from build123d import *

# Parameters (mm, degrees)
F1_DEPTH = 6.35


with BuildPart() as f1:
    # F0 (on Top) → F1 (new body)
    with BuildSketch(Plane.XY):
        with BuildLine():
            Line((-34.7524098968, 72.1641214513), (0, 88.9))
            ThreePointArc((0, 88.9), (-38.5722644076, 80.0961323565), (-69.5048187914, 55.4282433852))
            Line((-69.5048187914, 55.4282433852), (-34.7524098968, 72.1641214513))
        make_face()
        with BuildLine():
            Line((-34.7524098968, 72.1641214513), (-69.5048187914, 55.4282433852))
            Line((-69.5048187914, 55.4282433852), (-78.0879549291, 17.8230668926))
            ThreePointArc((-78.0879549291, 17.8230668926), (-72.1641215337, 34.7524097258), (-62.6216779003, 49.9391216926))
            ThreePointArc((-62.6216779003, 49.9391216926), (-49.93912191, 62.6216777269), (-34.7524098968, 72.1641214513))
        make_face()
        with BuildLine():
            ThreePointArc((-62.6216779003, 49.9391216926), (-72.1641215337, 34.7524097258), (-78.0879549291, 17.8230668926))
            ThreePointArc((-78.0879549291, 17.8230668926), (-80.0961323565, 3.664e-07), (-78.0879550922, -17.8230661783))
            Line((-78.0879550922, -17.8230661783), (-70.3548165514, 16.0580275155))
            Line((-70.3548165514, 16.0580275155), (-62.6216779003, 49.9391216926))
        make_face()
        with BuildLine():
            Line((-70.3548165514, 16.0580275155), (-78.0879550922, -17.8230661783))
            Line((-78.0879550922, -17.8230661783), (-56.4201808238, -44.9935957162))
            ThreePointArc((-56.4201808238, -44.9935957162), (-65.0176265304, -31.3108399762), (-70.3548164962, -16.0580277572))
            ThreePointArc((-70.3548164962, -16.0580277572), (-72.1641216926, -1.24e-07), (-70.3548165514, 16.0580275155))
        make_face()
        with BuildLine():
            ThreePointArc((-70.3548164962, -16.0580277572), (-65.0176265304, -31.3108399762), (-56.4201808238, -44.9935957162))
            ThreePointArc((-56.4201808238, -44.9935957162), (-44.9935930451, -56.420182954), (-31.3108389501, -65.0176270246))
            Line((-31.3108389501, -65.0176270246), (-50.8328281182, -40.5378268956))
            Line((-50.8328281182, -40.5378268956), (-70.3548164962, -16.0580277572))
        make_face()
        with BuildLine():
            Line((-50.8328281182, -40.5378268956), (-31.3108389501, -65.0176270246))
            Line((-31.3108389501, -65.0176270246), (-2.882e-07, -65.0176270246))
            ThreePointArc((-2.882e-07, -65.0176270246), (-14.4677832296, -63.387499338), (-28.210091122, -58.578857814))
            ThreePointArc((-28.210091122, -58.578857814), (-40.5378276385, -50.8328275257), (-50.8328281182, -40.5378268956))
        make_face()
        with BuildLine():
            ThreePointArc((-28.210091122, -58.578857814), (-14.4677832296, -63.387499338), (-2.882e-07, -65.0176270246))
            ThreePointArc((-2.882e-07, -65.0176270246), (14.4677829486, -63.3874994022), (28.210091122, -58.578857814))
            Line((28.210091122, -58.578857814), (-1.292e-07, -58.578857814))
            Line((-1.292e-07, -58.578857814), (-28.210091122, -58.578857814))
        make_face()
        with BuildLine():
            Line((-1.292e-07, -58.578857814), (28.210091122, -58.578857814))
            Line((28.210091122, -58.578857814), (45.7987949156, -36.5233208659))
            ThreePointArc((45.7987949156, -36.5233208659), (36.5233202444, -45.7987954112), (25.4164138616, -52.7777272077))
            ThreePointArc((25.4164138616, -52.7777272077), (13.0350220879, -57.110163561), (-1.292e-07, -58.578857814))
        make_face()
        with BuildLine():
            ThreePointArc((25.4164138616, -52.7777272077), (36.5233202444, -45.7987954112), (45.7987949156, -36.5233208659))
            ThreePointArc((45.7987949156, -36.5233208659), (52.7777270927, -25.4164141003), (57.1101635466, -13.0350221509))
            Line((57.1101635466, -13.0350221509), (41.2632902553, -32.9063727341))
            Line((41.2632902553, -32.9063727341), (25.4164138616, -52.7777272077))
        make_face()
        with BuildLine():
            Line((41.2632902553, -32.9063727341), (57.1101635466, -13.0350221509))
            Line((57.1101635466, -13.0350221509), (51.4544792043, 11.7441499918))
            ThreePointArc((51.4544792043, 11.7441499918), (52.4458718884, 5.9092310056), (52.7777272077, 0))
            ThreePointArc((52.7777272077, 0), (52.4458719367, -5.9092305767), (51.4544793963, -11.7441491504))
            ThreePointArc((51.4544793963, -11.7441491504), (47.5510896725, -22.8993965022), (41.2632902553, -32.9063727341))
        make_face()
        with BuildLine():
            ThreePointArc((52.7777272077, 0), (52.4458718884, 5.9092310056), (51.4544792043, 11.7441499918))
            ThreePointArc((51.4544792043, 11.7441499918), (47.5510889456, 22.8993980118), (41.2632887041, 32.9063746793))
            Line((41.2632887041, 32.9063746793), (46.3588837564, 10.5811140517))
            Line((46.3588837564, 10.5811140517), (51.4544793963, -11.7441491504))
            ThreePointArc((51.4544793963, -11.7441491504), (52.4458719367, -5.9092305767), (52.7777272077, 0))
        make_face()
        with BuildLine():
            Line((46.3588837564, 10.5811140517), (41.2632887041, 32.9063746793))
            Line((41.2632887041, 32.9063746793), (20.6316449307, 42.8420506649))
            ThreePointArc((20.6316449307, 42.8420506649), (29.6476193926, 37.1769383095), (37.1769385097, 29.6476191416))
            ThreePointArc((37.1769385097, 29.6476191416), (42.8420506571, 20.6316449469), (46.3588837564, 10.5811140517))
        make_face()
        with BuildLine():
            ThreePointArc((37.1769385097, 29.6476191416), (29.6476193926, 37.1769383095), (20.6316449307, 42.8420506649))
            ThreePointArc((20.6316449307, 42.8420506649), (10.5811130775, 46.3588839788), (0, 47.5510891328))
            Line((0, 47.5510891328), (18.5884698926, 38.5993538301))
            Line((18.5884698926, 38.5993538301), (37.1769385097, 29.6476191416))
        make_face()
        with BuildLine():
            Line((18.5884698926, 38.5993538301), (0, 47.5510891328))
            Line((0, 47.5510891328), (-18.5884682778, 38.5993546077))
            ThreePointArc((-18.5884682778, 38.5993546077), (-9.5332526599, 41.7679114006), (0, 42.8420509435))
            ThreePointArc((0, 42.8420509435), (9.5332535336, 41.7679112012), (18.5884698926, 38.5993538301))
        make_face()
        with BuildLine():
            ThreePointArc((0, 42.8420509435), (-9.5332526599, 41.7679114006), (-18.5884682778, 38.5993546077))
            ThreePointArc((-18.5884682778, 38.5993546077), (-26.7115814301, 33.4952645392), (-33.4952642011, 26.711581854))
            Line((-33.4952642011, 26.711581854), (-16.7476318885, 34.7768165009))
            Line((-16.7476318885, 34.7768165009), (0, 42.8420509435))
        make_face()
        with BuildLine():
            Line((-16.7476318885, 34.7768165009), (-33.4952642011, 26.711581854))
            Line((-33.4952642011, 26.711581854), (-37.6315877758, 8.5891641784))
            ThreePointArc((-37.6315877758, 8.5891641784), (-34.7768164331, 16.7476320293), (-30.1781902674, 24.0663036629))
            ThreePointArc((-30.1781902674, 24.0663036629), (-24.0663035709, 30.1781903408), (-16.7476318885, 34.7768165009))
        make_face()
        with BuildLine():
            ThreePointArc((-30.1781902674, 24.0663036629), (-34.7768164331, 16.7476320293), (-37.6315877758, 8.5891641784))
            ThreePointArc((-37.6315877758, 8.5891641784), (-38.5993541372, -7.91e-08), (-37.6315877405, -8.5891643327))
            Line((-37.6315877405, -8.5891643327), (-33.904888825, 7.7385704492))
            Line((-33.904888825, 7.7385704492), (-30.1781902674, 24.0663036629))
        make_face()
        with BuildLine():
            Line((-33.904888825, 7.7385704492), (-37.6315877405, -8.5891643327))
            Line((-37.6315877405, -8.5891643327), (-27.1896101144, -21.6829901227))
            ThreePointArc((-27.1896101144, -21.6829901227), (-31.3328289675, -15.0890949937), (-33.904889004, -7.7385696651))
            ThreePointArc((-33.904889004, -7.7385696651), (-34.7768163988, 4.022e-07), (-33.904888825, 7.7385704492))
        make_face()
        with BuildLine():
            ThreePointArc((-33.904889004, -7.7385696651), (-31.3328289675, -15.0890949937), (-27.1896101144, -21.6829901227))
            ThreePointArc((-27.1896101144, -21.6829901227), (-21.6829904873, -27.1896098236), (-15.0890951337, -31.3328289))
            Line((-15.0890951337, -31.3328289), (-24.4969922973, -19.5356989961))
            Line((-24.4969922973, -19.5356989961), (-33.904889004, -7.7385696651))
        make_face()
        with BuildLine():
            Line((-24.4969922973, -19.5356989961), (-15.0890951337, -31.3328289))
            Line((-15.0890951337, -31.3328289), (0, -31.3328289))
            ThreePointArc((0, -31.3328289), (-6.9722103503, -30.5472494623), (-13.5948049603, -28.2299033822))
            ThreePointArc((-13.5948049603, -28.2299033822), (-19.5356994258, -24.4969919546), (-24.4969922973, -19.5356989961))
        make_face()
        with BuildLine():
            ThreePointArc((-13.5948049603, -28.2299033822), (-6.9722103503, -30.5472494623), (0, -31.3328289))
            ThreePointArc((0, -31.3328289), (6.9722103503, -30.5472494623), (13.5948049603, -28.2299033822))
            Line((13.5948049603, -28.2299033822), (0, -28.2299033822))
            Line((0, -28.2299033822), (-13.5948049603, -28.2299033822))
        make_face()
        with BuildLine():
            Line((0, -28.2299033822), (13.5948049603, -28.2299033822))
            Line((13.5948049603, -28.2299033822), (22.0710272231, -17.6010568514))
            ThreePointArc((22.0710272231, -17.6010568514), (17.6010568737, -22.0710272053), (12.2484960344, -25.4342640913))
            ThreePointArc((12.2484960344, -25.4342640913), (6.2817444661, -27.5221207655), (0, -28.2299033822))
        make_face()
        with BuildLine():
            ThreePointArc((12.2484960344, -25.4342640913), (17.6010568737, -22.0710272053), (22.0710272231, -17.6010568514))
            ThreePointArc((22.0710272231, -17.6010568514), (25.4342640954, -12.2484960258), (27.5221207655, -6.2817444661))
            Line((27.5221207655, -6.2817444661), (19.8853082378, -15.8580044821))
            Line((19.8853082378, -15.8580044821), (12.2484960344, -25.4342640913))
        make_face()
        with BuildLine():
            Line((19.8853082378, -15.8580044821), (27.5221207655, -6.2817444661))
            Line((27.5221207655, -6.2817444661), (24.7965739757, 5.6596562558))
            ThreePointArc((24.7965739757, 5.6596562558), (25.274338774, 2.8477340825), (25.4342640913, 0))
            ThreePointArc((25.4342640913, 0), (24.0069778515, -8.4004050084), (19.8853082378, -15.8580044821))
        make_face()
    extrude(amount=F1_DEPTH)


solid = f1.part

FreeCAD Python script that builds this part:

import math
import FreeCAD as App
import Part
import Sketcher
from FreeCAD import Vector
Q = App.Units.Quantity

doc = App.newDocument("Part")
body = doc.addObject("PartDesign::Body", "Body")

sketch1 = body.newObject("Sketcher::SketchObject", "Sketch")
sketch1.AttachmentSupport = (doc.getObject("XY_Plane"), [""])
sketch1.MapMode = "FlatFace"
sketch1.addGeometry(Part.ArcOfCircle(Part.Circle(Vector(0, 0, 0), Vector(0, 0, 1), 89), math.radians(90), math.radians(141)), False)
sketch1.addGeometry(Part.LineSegment(Vector(-70, 55, 0), Vector(-78, 18, 0)), False)
sketch1.addGeometry(Part.ArcOfCircle(Part.Circle(Vector(0, 0, 0), Vector(0, 0, 1), 80), math.radians(167), math.radians(193)), False)
sketch1.addGeometry(Part.LineSegment(Vector(-78, -18, 0), Vector(-56, -45, 0)), False)
sketch1.addGeometry(Part.ArcOfCircle(Part.Circle(Vector(0, 0, 0), Vector(0, 0, 1), 72), math.radians(-141), math.radians(-116)), False)
sketch1.addGeometry(Part.LineSegment(Vector(-31, -65, 0), Vector(0, -65, 0)), False)
sketch1.addGeometry(Part.ArcOfCircle(Part.Circle(Vector(0, 0, 0), Vector(0, 0, 1), 65), math.radians(-90), math.radians(-64)), False)
sketch1.addGeometry(Part.LineSegment(Vector(28, -59, 0), Vector(46, -37, 0)), False)
sketch1.addGeometry(Part.ArcOfCircle(Part.Circle(Vector(0, 0, 0), Vector(0, 0, 1), 59), math.radians(-39), math.radians(-13)), False)
sketch1.addGeometry(Part.LineSegment(Vector(57, -13, 0), Vector(51, 12, 0)), False)
sketch1.addGeometry(Part.ArcOfCircle(Part.Circle(Vector(0, 0, 0), Vector(0, 0, 1), 53), math.radians(13), math.radians(39)), False)
sketch1.addGeometry(Part.LineSegment(Vector(41, 33, 0), Vector(21, 43, 0)), False)
sketch1.addGeometry(Part.ArcOfCircle(Part.Circle(Vector(0, 0, 0), Vector(0, 0, 1), 48), math.radians(64), math.radians(90)), False)
sketch1.addGeometry(Part.LineSegment(Vector(0, 48, 0), Vector(-19, 39, 0)), False)
sketch1.addGeometry(Part.ArcOfCircle(Part.Circle(Vector(0, 0, 0), Vector(0, 0, 1), 43), math.radians(116), math.radians(141)), False)
sketch1.addGeometry(Part.LineSegment(Vector(-33, 27, 0), Vector(-38, 9, 0)), False)
sketch1.addGeometry(Part.ArcOfCircle(Part.Circle(Vector(0, 0, 0), Vector(0, 0, 1), 39), math.radians(167), math.radians(193)), False)
sketch1.addGeometry(Part.LineSegment(Vector(-38, -9, 0), Vector(-27, -22, 0)), False)
sketch1.addGeometry(Part.ArcOfCircle(Part.Circle(Vector(0, 0, 0), Vector(0, 0, 1), 35), math.radians(-141), math.radians(-116)), False)
sketch1.addGeometry(Part.LineSegment(Vector(-15, -31, 0), Vector(0, -31, 0)), False)
sketch1.addGeometry(Part.ArcOfCircle(Part.Circle(Vector(0, 0, 0), Vector(0, 0, 1), 31), math.radians(-90), math.radians(-64)), False)
sketch1.addGeometry(Part.LineSegment(Vector(14, -28, 0), Vector(22, -18, 0)), False)
sketch1.addGeometry(Part.ArcOfCircle(Part.Circle(Vector(0, 0, 0), Vector(0, 0, 1), 28), math.radians(-39), math.radians(-13)), False)
sketch1.addGeometry(Part.LineSegment(Vector(28, -6, 0), Vector(25, 6, 0)), False)
sketch1.addGeometry(Part.ArcOfCircle(Part.Circle(Vector(0, 0, 0), Vector(0, 0, 1), 25), math.radians(0), math.radians(12.86)), False)
sketch1.addGeometry(Part.ArcOfCircle(Part.Circle(Vector(0, 0, 0), Vector(0, 0, 1), 25), math.radians(-39), math.radians(0)), False)
sketch1.addGeometry(Part.LineSegment(Vector(20, -16, 0), Vector(12, -25, 0)), False)
sketch1.addGeometry(Part.ArcOfCircle(Part.Circle(Vector(0, 0, 0), Vector(0, 0, 1), 28), math.radians(-90), math.radians(-64)), False)
sketch1.addGeometry(Part.LineSegment(Vector(0, -28, 0), Vector(-14, -28, 0)), False)
sketch1.addGeometry(Part.ArcOfCircle(Part.Circle(Vector(0, 0, 0), Vector(0, 0, 1), 31), math.radians(-141), math.radians(-116)), False)
sketch1.addGeometry(Part.LineSegment(Vector(-24, -20, 0), Vector(-34, -8, 0)), False)
sketch1.addGeometry(Part.ArcOfCircle(Part.Circle(Vector(0, 0, 0), Vector(0, 0, 1), 35), math.radians(167), math.radians(193)), False)
sketch1.addGeometry(Part.LineSegment(Vector(-34, 8, 0), Vector(-30, 24, 0)), False)
sketch1.addGeometry(Part.ArcOfCircle(Part.Circle(Vector(0, 0, 0), Vector(0, 0, 1), 39), math.radians(116), math.radians(141)), False)
sketch1.addGeometry(Part.LineSegment(Vector(-17, 35, 0), Vector(0, 43, 0)), False)
sketch1.addGeometry(Part.ArcOfCircle(Part.Circle(Vector(0, 0, 0), Vector(0, 0, 1), 43), math.radians(64), math.radians(90)), False)
sketch1.addGeometry(Part.LineSegment(Vector(19, 39, 0), Vector(37, 30, 0)), False)
sketch1.addGeometry(Part.ArcOfCircle(Part.Circle(Vector(0, 0, 0), Vector(0, 0, 1), 48), math.radians(13), math.radians(39)), False)
sketch1.addGeometry(Part.LineSegment(Vector(46, 11, 0), Vector(51, -12, 0)), False)
sketch1.addGeometry(Part.ArcOfCircle(Part.Circle(Vector(0, 0, 0), Vector(0, 0, 1), 53), math.radians(-39), math.radians(-13)), False)
sketch1.addGeometry(Part.LineSegment(Vector(41, -33, 0), Vector(25, -53, 0)), False)
sketch1.addGeometry(Part.ArcOfCircle(Part.Circle(Vector(0, 0, 0), Vector(0, 0, 1), 59), math.radians(-90), math.radians(-64)), False)
sketch1.addGeometry(Part.LineSegment(Vector(0, -59, 0), Vector(-28, -59, 0)), False)
sketch1.addGeometry(Part.ArcOfCircle(Part.Circle(Vector(0, 0, 0), Vector(0, 0, 1), 65), math.radians(-141), math.radians(-116)), False)
sketch1.addGeometry(Part.LineSegment(Vector(-51, -41, 0), Vector(-70, -16, 0)), False)
sketch1.addGeometry(Part.ArcOfCircle(Part.Circle(Vector(0, 0, 0), Vector(0, 0, 1), 72), math.radians(167), math.radians(193)), False)
sketch1.addGeometry(Part.LineSegment(Vector(-70, 16, 0), Vector(-63, 50, 0)), False)
sketch1.addGeometry(Part.ArcOfCircle(Part.Circle(Vector(0, 0, 0), Vector(0, 0, 1), 80), math.radians(116), math.radians(141)), False)
sketch1.addGeometry(Part.LineSegment(Vector(-35, 72, 0), Vector(0, 89, 0)), False)
sketch1.addConstraint(Sketcher.Constraint("Coincident", 0, 2, 1, 1))
sketch1.addConstraint(Sketcher.Constraint("Tangent", 1, 2, 2, 1))
sketch1.addConstraint(Sketcher.Constraint("Coincident", 2, 2, 3, 1))
sketch1.addConstraint(Sketcher.Constraint("Tangent", 3, 2, 4, 1))
sketch1.addConstraint(Sketcher.Constraint("Coincident", 4, 2, 5, 1))
sketch1.addConstraint(Sketcher.Constraint("Tangent", 5, 2, 6, 1))
sketch1.addConstraint(Sketcher.Constraint("Coincident", 6, 2, 7, 1))
sketch1.addConstraint(Sketcher.Constraint("Tangent", 7, 2, 8, 1))
sketch1.addConstraint(Sketcher.Constraint("Coincident", 8, 2, 9, 1))
sketch1.addConstraint(Sketcher.Constraint("Tangent", 9, 2, 10, 1))
sketch1.addConstraint(Sketcher.Constraint("Coincident", 10, 2, 11, 1))
sketch1.addConstraint(Sketcher.Constraint("Tangent", 11, 2, 12, 1))
sketch1.addConstraint(Sketcher.Constraint("Coincident", 12, 2, 13, 1))
sketch1.addConstraint(Sketcher.Constraint("Tangent", 13, 2, 14, 1))
sketch1.addConstraint(Sketcher.Constraint("Coincident", 14, 2, 15, 1))
sketch1.addConstraint(Sketcher.Constraint("Tangent", 15, 2, 16, 1))
sketch1.addConstraint(Sketcher.Constraint("Coincident", 16, 2, 17, 1))
sketch1.addConstraint(Sketcher.Constraint("Tangent", 17, 2, 18, 1))
sketch1.addConstraint(Sketcher.Constraint("Coincident", 18, 2, 19, 1))
sketch1.addConstraint(Sketcher.Constraint("Tangent", 19, 2, 20, 1))
sketch1.addConstraint(Sketcher.Constraint("Coincident", 20, 2, 21, 1))
sketch1.addConstraint(Sketcher.Constraint("Tangent", 21, 2, 22, 1))
sketch1.addConstraint(Sketcher.Constraint("Coincident", 22, 2, 23, 1))
sketch1.addConstraint(Sketcher.Constraint("Tangent", 23, 2, 24, 2))
sketch1.addConstraint(Sketcher.Constraint("Tangent", 24, 1, 25, 2))
sketch1.addConstraint(Sketcher.Constraint("Tangent", 25, 1, 26, 1))
sketch1.addConstraint(Sketcher.Constraint("Coincident", 26, 2, 27, 2))
sketch1.addConstraint(Sketcher.Constraint("Tangent", 27, 1, 28, 1))
sketch1.addConstraint(Sketcher.Constraint("Coincident", 28, 2, 29, 2))
sketch1.addConstraint(Sketcher.Constraint("Tangent", 29, 1, 30, 1))
sketch1.addConstraint(Sketcher.Constraint("Coincident", 30, 2, 31, 2))
sketch1.addConstraint(Sketcher.Constraint("Tangent", 31, 1, 32, 1))
sketch1.addConstraint(Sketcher.Constraint("Coincident", 32, 2, 33, 2))
sketch1.addConstraint(Sketcher.Constraint("Tangent", 33, 1, 34, 1))
sketch1.addConstraint(Sketcher.Constraint("Coincident", 34, 2, 35, 2))
sketch1.addConstraint(Sketcher.Constraint("Tangent", 35, 1, 36, 1))
sketch1.addConstraint(Sketcher.Constraint("Coincident", 36, 2, 37, 2))
sketch1.addConstraint(Sketcher.Constraint("Tangent", 37, 1, 38, 1))
sketch1.addConstraint(Sketcher.Constraint("Coincident", 38, 2, 39, 2))
sketch1.addConstraint(Sketcher.Constraint("Tangent", 39, 1, 40, 1))
sketch1.addConstraint(Sketcher.Constraint("Coincident", 40, 2, 41, 2))
sketch1.addConstraint(Sketcher.Constraint("Tangent", 41, 1, 42, 1))
sketch1.addConstraint(Sketcher.Constraint("Coincident", 42, 2, 43, 2))
sketch1.addConstraint(Sketcher.Constraint("Tangent", 43, 1, 44, 1))
sketch1.addConstraint(Sketcher.Constraint("Coincident", 44, 2, 45, 2))
sketch1.addConstraint(Sketcher.Constraint("Tangent", 45, 1, 46, 1))
sketch1.addConstraint(Sketcher.Constraint("Coincident", 46, 2, 47, 2))
sketch1.addConstraint(Sketcher.Constraint("Tangent", 47, 1, 48, 1))
sketch1.addConstraint(Sketcher.Constraint("Coincident", 48, 2, 0, 1))
sketch1.addConstraint(Sketcher.Constraint("Horizontal", 5))
sketch1.addConstraint(Sketcher.Constraint("Horizontal", 19))
sketch1.addConstraint(Sketcher.Constraint("Horizontal", 28))
sketch1.addConstraint(Sketcher.Constraint("Horizontal", 42))
sketch1.addConstraint(Sketcher.Constraint("Coincident", 0, 3, -1, 1))
sketch1.addConstraint(Sketcher.Constraint("Coincident", 2, 3, -1, 1))
sketch1.addConstraint(Sketcher.Constraint("Coincident", 4, 3, -1, 1))
sketch1.addConstraint(Sketcher.Constraint("Coincident", 6, 3, -1, 1))
sketch1.addConstraint(Sketcher.Constraint("Coincident", 8, 3, -1, 1))
sketch1.addConstraint(Sketcher.Constraint("Coincident", 10, 3, -1, 1))
sketch1.addConstraint(Sketcher.Constraint("Coincident", 12, 3, -1, 1))
sketch1.addConstraint(Sketcher.Constraint("Coincident", 14, 3, -1, 1))
sketch1.addConstraint(Sketcher.Constraint("Coincident", 16, 3, -1, 1))
sketch1.addConstraint(Sketcher.Constraint("Coincident", 18, 3, -1, 1))
sketch1.addConstraint(Sketcher.Constraint("Coincident", 20, 3, -1, 1))
sketch1.addConstraint(Sketcher.Constraint("Coincident", 22, 3, -1, 1))
sketch1.addConstraint(Sketcher.Constraint("Coincident", 24, 3, -1, 1))
sketch1.addConstraint(Sketcher.Constraint("Coincident", 27, 3, -1, 1))
sketch1.addConstraint(Sketcher.Constraint("Coincident", 29, 3, -1, 1))
sketch1.addConstraint(Sketcher.Constraint("Coincident", 31, 3, -1, 1))
sketch1.addConstraint(Sketcher.Constraint("Coincident", 33, 3, -1, 1))
sketch1.addConstraint(Sketcher.Constraint("Coincident", 35, 3, -1, 1))
sketch1.addConstraint(Sketcher.Constraint("Coincident", 37, 3, -1, 1))
sketch1.addConstraint(Sketcher.Constraint("Coincident", 39, 3, -1, 1))
sketch1.addConstraint(Sketcher.Constraint("Coincident", 41, 3, -1, 1))
sketch1.addConstraint(Sketcher.Constraint("Coincident", 43, 3, -1, 1))
sketch1.addConstraint(Sketcher.Constraint("Coincident", 45, 3, -1, 1))
sketch1.addConstraint(Sketcher.Constraint("Coincident", 47, 3, -1, 1))
sketch1.addConstraint(Sketcher.Constraint("Equal", 24, 25))
sketch1.addConstraint(Sketcher.Constraint("Equal", 22, 27))
sketch1.addConstraint(Sketcher.Constraint("Equal", 20, 29))
sketch1.addConstraint(Sketcher.Constraint("Equal", 18, 31))
sketch1.addConstraint(Sketcher.Constraint("Equal", 16, 33))
sketch1.addConstraint(Sketcher.Constraint("Equal", 14, 35))
sketch1.addConstraint(Sketcher.Constraint("Equal", 12, 37))
sketch1.addConstraint(Sketcher.Constraint("Equal", 10, 39))
sketch1.addConstraint(Sketcher.Constraint("Equal", 8, 41))
sketch1.addConstraint(Sketcher.Constraint("Equal", 6, 43))
sketch1.addConstraint(Sketcher.Constraint("Equal", 4, 45))
sketch1.addConstraint(Sketcher.Constraint("Equal", 2, 47))
sketch1.addConstraint(Sketcher.Constraint("PointOnObject", 12, 2, -2))
sketch1.addConstraint(Sketcher.Constraint("PointOnObject", 24, 1, -1))
sketch1.addConstraint(Sketcher.Constraint("PointOnObject", 34, 2, -2))
sketch1.addConstraint(Sketcher.Constraint("PointOnObject", 48, 2, -2))
sketch1.addConstraint(Sketcher.Constraint("Parallel", 1, 15))
sketch1.addConstraint(Sketcher.Constraint("Parallel", 3, 17))
sketch1.addConstraint(Sketcher.Constraint("Parallel", 7, 21))
sketch1.addConstraint(Sketcher.Constraint("Parallel", 9, 23))
sketch1.addConstraint(Sketcher.Constraint("Parallel", 21, 26))
sketch1.addConstraint(Sketcher.Constraint("Parallel", 17, 30))
sketch1.addConstraint(Sketcher.Constraint("Parallel", 15, 32))
sketch1.addConstraint(Sketcher.Constraint("Parallel", 13, 34))
sketch1.addConstraint(Sketcher.Constraint("Parallel", 11, 36))
sketch1.addConstraint(Sketcher.Constraint("Parallel", 23, 38))
sketch1.addConstraint(Sketcher.Constraint("Parallel", 26, 40))
sketch1.addConstraint(Sketcher.Constraint("Parallel", 30, 44))
sketch1.addConstraint(Sketcher.Constraint("Parallel", 32, 46))
sketch1.addConstraint(Sketcher.Constraint("Parallel", 34, 48))
sketch1.addConstraint(Sketcher.Constraint("Horizontal", 20, 2, 27, 1))
sketch1.addConstraint(Sketcher.Constraint("Horizontal", 11, 2, 34, 2))
sketch1.addConstraint(Sketcher.Constraint("Horizontal", 6, 2, 41, 1))
sketch1.addConstraint(Sketcher.Constraint("Vertical", 1, 2, 2, 2))
sketch1.addConstraint(Sketcher.Constraint("Vertical", 15, 2, 16, 2))
sketch1.addConstraint(Sketcher.Constraint("Vertical", 30, 2, 31, 1))
sketch1.addConstraint(Sketcher.Constraint("Vertical", 9, 2, 38, 2))
sketch1.addConstraint(Sketcher.Constraint("Vertical", 10, 2, 39, 1))
sketch1.addConstraint(Sketcher.Constraint("Vertical", 44, 2, 45, 1))
sketch1.addConstraint(Sketcher.Constraint("Radius", 0, Q("3.5 in")))
sketch1.addConstraint(Sketcher.Constraint("Radius", 4, Q("72.164122 mm")))
sketch1.addConstraint(Sketcher.Constraint("Radius", 12, Q("47.551089 mm")))
sketch1.addConstraint(Sketcher.Constraint("Radius", 14, Q("42.842051 mm")))
sketch1.addConstraint(Sketcher.Constraint("Radius", 8, Q("58.578858 mm")))
sketch1.addConstraint(Sketcher.Constraint("Radius", 24, Q("25.434264 mm")))
sketch1.addConstraint(Sketcher.Constraint("DistanceY", 29, 1, -1, 1, Q("19.535699 mm")))
pad1 = body.newObject("PartDesign::Pad", "Pad")
pad1.Profile = sketch1
pad1.Length = Q("0.25 in")

doc.recompute()
